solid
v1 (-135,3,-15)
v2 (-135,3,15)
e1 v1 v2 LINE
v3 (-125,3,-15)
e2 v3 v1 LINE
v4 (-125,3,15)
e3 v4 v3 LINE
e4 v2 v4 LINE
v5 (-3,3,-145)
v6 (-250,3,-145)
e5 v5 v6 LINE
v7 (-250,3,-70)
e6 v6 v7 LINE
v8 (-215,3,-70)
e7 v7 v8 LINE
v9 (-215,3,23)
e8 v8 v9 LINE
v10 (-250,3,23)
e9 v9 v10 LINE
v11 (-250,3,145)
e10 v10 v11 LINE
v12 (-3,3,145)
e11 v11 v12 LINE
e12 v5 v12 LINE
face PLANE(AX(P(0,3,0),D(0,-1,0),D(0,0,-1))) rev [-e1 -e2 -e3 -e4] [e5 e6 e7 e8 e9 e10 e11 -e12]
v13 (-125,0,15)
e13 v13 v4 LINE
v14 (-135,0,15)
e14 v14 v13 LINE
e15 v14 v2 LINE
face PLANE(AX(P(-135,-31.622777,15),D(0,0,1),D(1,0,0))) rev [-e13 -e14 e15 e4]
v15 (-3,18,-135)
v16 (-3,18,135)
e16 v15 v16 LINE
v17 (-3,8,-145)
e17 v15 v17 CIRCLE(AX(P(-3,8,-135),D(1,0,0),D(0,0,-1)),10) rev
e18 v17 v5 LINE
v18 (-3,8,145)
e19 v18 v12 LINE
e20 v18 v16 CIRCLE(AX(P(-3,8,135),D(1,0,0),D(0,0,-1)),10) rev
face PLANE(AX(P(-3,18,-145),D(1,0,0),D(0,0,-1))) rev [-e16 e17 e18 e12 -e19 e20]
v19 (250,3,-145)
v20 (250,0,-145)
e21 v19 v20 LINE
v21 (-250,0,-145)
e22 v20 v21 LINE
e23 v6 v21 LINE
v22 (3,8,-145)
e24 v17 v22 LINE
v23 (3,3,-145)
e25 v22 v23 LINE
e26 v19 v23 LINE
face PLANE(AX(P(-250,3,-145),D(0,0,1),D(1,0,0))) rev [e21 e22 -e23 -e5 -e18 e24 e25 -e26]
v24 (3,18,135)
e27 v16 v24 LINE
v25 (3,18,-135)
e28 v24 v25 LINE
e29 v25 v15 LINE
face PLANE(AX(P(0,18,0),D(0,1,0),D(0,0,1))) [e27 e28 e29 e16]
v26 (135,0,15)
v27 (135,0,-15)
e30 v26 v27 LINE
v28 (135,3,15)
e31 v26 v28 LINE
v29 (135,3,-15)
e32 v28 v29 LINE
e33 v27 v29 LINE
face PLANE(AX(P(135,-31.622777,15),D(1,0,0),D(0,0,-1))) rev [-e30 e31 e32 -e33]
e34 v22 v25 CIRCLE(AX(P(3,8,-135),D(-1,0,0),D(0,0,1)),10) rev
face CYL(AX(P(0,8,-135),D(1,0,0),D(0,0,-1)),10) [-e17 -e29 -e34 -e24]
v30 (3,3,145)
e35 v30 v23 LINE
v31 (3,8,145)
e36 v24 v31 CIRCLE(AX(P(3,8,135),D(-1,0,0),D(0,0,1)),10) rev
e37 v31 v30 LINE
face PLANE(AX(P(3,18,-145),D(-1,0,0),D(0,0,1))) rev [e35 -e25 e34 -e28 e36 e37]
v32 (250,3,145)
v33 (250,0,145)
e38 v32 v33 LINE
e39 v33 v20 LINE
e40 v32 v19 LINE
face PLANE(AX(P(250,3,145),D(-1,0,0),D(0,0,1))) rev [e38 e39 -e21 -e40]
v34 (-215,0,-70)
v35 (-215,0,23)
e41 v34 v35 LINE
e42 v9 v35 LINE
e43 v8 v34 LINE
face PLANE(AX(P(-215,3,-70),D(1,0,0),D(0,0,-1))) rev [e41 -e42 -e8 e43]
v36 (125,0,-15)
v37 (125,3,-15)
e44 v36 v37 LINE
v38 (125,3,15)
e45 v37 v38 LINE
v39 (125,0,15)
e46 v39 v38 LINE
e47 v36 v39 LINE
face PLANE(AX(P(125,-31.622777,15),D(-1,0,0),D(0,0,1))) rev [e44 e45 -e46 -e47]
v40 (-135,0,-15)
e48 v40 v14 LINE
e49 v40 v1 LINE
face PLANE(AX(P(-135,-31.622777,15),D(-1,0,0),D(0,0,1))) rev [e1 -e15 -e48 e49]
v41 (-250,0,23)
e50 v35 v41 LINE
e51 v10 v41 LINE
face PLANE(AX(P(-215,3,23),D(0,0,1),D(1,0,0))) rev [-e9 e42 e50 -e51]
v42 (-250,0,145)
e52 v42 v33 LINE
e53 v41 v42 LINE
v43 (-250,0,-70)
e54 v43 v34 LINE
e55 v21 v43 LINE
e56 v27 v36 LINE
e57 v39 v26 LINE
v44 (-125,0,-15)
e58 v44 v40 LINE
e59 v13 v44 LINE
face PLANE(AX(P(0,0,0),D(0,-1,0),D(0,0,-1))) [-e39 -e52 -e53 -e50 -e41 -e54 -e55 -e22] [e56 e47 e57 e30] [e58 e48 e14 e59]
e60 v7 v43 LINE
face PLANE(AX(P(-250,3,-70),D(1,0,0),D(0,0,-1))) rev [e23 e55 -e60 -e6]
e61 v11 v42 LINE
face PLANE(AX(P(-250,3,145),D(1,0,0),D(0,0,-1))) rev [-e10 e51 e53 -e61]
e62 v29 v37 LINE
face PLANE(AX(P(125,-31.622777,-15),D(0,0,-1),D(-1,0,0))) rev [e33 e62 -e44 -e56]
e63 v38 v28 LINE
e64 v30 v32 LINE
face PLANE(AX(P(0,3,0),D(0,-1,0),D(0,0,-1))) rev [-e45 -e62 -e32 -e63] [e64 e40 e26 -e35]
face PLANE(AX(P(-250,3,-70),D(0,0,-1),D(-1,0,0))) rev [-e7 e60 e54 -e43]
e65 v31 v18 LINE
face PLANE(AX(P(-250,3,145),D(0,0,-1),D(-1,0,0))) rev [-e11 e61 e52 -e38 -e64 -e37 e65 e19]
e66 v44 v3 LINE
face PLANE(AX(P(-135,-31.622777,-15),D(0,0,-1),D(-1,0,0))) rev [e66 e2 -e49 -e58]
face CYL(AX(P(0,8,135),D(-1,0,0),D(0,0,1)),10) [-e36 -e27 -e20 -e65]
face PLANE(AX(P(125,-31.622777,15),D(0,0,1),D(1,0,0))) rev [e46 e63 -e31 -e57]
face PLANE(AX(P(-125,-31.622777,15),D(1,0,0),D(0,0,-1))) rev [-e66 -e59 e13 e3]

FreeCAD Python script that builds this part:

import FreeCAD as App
import Part
import Sketcher
from FreeCAD import Vector


def edges_at(feature, points):
    """Names of the edges that pass closest to the given points."""
    edges = feature.Shape.Edges
    near = lambda p: min(range(len(edges)), key=lambda i: edges[i].distToShape(Part.Vertex(*p))[0])
    return sorted({f"Edge{near(p) + 1}" for p in points})


def add_polygon(sketch, points):
    """Adds a closed chain of lines whose ends are joined by coincident constraints."""
    first, n = sketch.GeometryCount, len(points)
    for a, b in zip(points, points[1:] + points[:1]):
        sketch.addGeometry(Part.LineSegment(App.Vector(*a, 0), App.Vector(*b, 0)), False)
    for i in range(n):
        sketch.addConstraint(Sketcher.Constraint("Coincident", first + i, 2, first + (i + 1) % n, 1))

doc = App.newDocument("Part")
body = doc.addObject("PartDesign::Body", "Body")

# Sketch on XZ plane
sketch1 = body.newObject("Sketcher::SketchObject", "Sketch")
sketch1.AttachmentSupport = (doc.getObject("XZ_Plane"), [""])
sketch1.MapMode = "FlatFace"
add_polygon(sketch1, [(-250, 145), (250, 145), (250, -145), (-250, -145), (-250, -70), (-215, -70), (-215, 23), (-250, 23)])  # lines 0-7
sketch1.addConstraint([
    Sketcher.Constraint("Horizontal", 0),
    Sketcher.Constraint("Vertical", 1),
    Sketcher.Constraint("Horizontal", 2),
    Sketcher.Constraint("Vertical", 3),
    Sketcher.Constraint("Horizontal", 4),
    Sketcher.Constraint("Vertical", 5),
    Sketcher.Constraint("Horizontal", 6),
    Sketcher.Constraint("Vertical", 7),
    Sketcher.Constraint("Symmetric", 0, 2, 2, 2, -1, 1),
    Sketcher.Constraint("Vertical", 3, 2, 6, 2),
    Sketcher.Constraint("DistanceX", 0, 1, 0, 2, 500.0),
    Sketcher.Constraint("DistanceX", 4, 1, 4, 2, 35.0),
    Sketcher.Constraint("DistanceY", 1, 2, 1, 1, 290.0),
    Sketcher.Constraint("DistanceY", 3, 1, 3, 2, 75.0),
    Sketcher.Constraint("DistanceY", 5, 1, 5, 2, 93.0),
])
pad1 = body.newObject("PartDesign::Pad", "Pad")
pad1.Profile = sketch1
pad1.Length = 3
pad1.Reversed = True

# Sketch on XZ plane
sketch2 = body.newObject("Sketcher::SketchObject", "Sketch001")
sketch2.AttachmentSupport = (doc.getObject("XZ_Plane"), [""])
sketch2.MapMode = "FlatFace"
sketch2.AttachmentOffset = App.Placement(Vector(0, 0, -3), App.Rotation())
add_polygon(sketch2, [(125, -15), (125, 15), (135, 15), (135, -15)])  # lines 0-3
add_polygon(sketch2, [(-135, -15), (-135, 15), (-125, 15), (-125, -15)])  # lines 4-7
sketch2.addConstraint([
    Sketcher.Constraint("Vertical", 0),
    Sketcher.Constraint("Horizontal", 1),
    Sketcher.Constraint("Vertical", 2),
    Sketcher.Constraint("Horizontal", 3),
    Sketcher.Constraint("Vertical", 4),
    Sketcher.Constraint("Horizontal", 5),
    Sketcher.Constraint("Vertical", 6),
    Sketcher.Constraint("Horizontal", 7),
    Sketcher.Constraint("Symmetric", 2, 2, 4, 2, -1, 1),
    Sketcher.Constraint("Symmetric", 0, 2, 6, 2, -1, 1),
    Sketcher.Constraint("Horizontal", 1, 2, 4, 2),
    Sketcher.Constraint("DistanceX", 1, 1, 1, 2, 10.0),
    Sketcher.Constraint("DistanceY", 0, 1, 0, 2, 30.0),
    Sketcher.Constraint("DistanceX", -1, 1, 0, 2, 125.0),
])
pocket1 = body.newObject("PartDesign::Pocket", "Pocket")
pocket1.Profile = sketch2
pocket1.Length = 3
pocket1.Reversed = True

# Sketch on XZ plane
sketch3 = body.newObject("Sketcher::SketchObject", "Sketch002")
sketch3.AttachmentSupport = (doc.getObject("XZ_Plane"), [""])
sketch3.MapMode = "FlatFace"
sketch3.AttachmentOffset = App.Placement(Vector(0, 0, -3), App.Rotation())
add_polygon(sketch3, [(-3, -145), (-3, 145), (3, 145), (3, -145)])  # lines 0-3
sketch3.addConstraint([
    Sketcher.Constraint("Vertical", 0),
    Sketcher.Constraint("Horizontal", 1),
    Sketcher.Constraint("Vertical", 2),
    Sketcher.Constraint("Horizontal", 3),
    Sketcher.Constraint("Symmetric", 0, 2, 2, 2, -1, 1),
    Sketcher.Constraint("DistanceX", 1, 1, 1, 2, 6.0),
    Sketcher.Constraint("DistanceY", 0, 1, 0, 2, 290.0),
])
pad2 = body.newObject("PartDesign::Pad", "Pad001")
pad2.Profile = sketch3
pad2.Length = 15
pad2.Reversed = True
doc.recompute()

fillet = body.newObject("PartDesign::Fillet", "Fillet")
fillet.Base = (pad2, edges_at(pad2, [(0, 18, -145), (0, 18, 145)]))
fillet.Radius = 10

doc.recompute()
